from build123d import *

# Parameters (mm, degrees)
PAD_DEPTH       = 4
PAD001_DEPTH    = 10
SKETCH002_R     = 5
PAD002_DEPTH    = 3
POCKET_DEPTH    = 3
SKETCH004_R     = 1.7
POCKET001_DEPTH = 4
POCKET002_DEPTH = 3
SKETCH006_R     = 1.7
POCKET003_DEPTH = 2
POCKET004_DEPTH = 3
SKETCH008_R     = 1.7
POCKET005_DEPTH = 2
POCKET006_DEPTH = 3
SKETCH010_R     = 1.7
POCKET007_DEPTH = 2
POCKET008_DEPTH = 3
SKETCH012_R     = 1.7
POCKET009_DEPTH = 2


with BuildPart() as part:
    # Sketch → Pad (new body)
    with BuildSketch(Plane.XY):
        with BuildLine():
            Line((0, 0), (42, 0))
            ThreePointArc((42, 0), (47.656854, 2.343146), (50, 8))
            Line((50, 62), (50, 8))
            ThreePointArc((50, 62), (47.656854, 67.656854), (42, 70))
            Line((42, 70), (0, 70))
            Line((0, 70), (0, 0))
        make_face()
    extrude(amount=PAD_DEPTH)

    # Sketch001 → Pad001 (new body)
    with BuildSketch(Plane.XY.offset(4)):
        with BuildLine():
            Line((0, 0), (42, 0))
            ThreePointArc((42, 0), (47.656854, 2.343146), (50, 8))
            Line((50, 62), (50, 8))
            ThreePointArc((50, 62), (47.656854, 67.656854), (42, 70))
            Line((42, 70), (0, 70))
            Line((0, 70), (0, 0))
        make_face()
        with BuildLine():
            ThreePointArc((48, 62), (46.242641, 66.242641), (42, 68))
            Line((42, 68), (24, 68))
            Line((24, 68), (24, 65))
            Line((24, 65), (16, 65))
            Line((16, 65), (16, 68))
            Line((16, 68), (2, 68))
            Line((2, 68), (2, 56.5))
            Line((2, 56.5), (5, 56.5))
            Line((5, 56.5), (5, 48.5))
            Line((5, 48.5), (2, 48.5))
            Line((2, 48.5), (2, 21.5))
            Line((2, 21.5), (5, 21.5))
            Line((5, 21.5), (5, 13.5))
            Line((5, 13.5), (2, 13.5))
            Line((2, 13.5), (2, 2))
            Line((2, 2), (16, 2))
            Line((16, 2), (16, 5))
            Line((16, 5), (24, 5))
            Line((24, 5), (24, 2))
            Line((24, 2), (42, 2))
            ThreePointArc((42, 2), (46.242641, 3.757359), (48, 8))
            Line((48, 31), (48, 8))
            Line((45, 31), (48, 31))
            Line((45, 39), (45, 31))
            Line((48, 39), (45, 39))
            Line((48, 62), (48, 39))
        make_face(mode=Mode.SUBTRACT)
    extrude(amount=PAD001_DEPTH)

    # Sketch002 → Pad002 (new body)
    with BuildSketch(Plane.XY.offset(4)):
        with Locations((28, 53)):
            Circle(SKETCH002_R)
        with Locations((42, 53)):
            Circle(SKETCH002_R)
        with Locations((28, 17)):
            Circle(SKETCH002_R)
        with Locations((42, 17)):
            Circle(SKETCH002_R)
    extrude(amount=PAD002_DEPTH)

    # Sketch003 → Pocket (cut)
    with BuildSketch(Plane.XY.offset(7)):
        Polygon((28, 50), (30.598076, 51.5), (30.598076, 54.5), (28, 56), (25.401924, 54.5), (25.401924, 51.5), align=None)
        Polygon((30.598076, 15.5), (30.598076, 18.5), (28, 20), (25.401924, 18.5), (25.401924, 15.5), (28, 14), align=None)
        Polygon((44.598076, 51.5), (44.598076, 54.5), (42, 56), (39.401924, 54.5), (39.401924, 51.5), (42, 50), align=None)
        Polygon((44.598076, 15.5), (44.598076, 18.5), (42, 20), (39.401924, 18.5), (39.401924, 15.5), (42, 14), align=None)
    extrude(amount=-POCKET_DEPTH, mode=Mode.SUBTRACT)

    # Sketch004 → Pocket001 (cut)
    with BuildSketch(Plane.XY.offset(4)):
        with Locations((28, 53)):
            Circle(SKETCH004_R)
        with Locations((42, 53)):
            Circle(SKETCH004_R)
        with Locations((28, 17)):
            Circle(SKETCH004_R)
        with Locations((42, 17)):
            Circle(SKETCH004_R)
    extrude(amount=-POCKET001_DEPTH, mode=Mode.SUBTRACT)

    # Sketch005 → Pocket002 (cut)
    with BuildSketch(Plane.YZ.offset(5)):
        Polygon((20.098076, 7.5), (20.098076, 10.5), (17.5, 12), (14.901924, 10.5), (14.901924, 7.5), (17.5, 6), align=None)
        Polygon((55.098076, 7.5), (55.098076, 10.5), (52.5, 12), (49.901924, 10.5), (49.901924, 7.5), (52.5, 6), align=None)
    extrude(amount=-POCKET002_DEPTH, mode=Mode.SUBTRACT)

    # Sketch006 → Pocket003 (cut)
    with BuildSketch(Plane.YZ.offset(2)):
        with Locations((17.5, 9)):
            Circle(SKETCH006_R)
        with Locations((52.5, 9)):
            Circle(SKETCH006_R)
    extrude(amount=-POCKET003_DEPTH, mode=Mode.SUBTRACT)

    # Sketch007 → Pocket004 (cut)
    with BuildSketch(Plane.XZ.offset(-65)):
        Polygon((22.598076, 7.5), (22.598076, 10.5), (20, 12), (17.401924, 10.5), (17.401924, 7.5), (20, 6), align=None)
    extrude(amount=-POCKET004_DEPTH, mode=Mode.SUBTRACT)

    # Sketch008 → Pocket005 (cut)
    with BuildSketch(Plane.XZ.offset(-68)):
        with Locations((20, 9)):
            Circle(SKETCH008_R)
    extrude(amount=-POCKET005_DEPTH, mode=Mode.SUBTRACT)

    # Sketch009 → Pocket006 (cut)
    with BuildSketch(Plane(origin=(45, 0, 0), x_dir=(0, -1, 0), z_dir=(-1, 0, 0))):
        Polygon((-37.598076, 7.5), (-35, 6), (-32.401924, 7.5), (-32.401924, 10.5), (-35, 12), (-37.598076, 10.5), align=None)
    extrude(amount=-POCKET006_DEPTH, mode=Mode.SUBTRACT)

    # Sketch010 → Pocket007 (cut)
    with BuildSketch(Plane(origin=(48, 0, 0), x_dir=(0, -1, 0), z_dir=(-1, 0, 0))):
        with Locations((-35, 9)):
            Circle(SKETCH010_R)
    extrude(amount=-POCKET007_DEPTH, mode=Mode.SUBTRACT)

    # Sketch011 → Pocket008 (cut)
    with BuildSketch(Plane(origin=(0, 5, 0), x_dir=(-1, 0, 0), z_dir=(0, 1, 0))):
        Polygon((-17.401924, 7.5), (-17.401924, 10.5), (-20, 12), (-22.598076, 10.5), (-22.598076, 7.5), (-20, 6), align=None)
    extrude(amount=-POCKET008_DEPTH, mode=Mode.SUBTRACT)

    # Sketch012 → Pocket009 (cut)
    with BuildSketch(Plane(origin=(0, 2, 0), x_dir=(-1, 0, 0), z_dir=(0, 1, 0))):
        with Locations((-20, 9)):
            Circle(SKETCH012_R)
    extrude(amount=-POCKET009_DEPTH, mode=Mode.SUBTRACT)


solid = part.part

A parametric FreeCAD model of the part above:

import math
import FreeCAD as App
import Part
import Sketcher
Q = App.Units.Quantity

doc = App.newDocument("Part")
body = doc.addObject("PartDesign::Body", "Body")

# Sketch on XY plane
sketch1 = doc.addObject("Sketcher::SketchObject", "Sketch")
body.addObject(sketch1)
sketch1.AttachmentSupport = (doc.XY_Plane, [""])
sketch1.MapMode = "FlatFace"
sketch1.addGeometry(Part.LineSegment(App.Vector(0, 0, 0), App.Vector(42, 0, 0)), False)
sketch1.addGeometry(Part.ArcOfCircle(Part.Circle(App.Vector(42, 8, 0), App.Vector(0, 0, 1), 8), math.radians(-90), math.radians(0)), False)
sketch1.addGeometry(Part.LineSegment(App.Vector(50, 8, 0), App.Vector(50, 62, 0)), False)
sketch1.addGeometry(Part.ArcOfCircle(Part.Circle(App.Vector(42, 62, 0), App.Vector(0, 0, 1), 8), math.radians(0), math.radians(90)), False)
sketch1.addGeometry(Part.LineSegment(App.Vector(42, 70, 0), App.Vector(0, 70, 0)), False)
sketch1.addGeometry(Part.LineSegment(App.Vector(0, 70, 0), App.Vector(0, 0, 0)), False)
sketch1.addConstraint(Sketcher.Constraint("Tangent", 0, 2, 1, 1))
sketch1.addConstraint(Sketcher.Constraint("Tangent", 1, 2, 2, 1))
sketch1.addConstraint(Sketcher.Constraint("Tangent", 2, 2, 3, 1))
sketch1.addConstraint(Sketcher.Constraint("Tangent", 3, 2, 4, 1))
sketch1.addConstraint(Sketcher.Constraint("Coincident", 4, 2, 5, 1))
sketch1.addConstraint(Sketcher.Constraint("Coincident", 5, 2, 0, 1))
sketch1.addConstraint(Sketcher.Constraint("Horizontal", 0))
sketch1.addConstraint(Sketcher.Constraint("Vertical", 2))
sketch1.addConstraint(Sketcher.Constraint("Horizontal", 4))
sketch1.addConstraint(Sketcher.Constraint("Vertical", 5))
sketch1.addConstraint(Sketcher.Constraint("Coincident", 5, 2, -1, 1))
sketch1.addConstraint(Sketcher.Constraint("Equal", 1, 3))
sketch1.addConstraint(Sketcher.Constraint("Radius", 1, 8.000001))
sketch1.addConstraint(Sketcher.Constraint("DistanceX", 0, 1, 0, 2, 42.0))
sketch1.addConstraint(Sketcher.Constraint("DistanceY", 2, 1, 2, 2, 54.0))
pad1 = doc.addObject("PartDesign::Pad", "Pad")
body.addObject(pad1)
pad1.Profile = sketch1
pad1.Length = 4

# Sketch on XY plane
sketch2 = doc.addObject("Sketcher::SketchObject", "Sketch001")
body.addObject(sketch2)
sketch2.AttachmentSupport = (doc.XY_Plane, [""])
sketch2.MapMode = "FlatFace"
sketch2.AttachmentOffset = App.Placement(App.Vector(0, 0, 4), App.Rotation())
sketch2.addGeometry(Part.LineSegment(App.Vector(0, 0, 0), App.Vector(42, 0, 0)), False)
sketch2.addGeometry(Part.ArcOfCircle(Part.Circle(App.Vector(42, 8, 0), App.Vector(0, 0, 1), 8), math.radians(-90), math.radians(0)), False)
sketch2.addGeometry(Part.LineSegment(App.Vector(50, 8, 0), App.Vector(50, 62, 0)), False)
sketch2.addGeometry(Part.ArcOfCircle(Part.Circle(App.Vector(42, 62, 0), App.Vector(0, 0, 1), 8), math.radians(0), math.radians(90)), False)
sketch2.addGeometry(Part.LineSegment(App.Vector(42, 70, 0), App.Vector(0, 70, 0)), False)
sketch2.addGeometry(Part.LineSegment(App.Vector(0, 70, 0), App.Vector(0, 0, 0)), False)
sketch2.addGeometry(Part.ArcOfCircle(Part.Circle(App.Vector(42, 62, 0), App.Vector(0, 0, 1), 6), math.radians(0), math.radians(90)), False)
sketch2.addGeometry(Part.LineSegment(App.Vector(48, 62, 0), App.Vector(48, 39, 0)), False)
sketch2.addGeometry(Part.LineSegment(App.Vector(48, 39, 0), App.Vector(45, 39, 0)), False)
sketch2.addGeometry(Part.LineSegment(App.Vector(45, 39, 0), App.Vector(45, 31, 0)), False)
sketch2.addGeometry(Part.LineSegment(App.Vector(45, 31, 0), App.Vector(48, 31, 0)), False)
sketch2.addGeometry(Part.LineSegment(App.Vector(48, 31, 0), App.Vector(48, 8, 0)), False)
sketch2.addGeometry(Part.ArcOfCircle(Part.Circle(App.Vector(42, 8, 0), App.Vector(0, 0, 1), 6), math.radians(-90), math.radians(0)), False)
sketch2.addGeometry(Part.LineSegment(App.Vector(42, 2, 0), App.Vector(24, 2, 0)), False)
sketch2.addGeometry(Part.LineSegment(App.Vector(24, 2, 0), App.Vector(24, 5, 0)), False)
sketch2.addGeometry(Part.LineSegment(App.Vector(24, 5, 0), App.Vector(16, 5, 0)), False)
sketch2.addGeometry(Part.LineSegment(App.Vector(16, 5, 0), App.Vector(16, 2, 0)), False)
sketch2.addGeometry(Part.LineSegment(App.Vector(16, 2, 0), App.Vector(2, 2, 0)), False)
sketch2.addGeometry(Part.LineSegment(App.Vector(2, 2, 0), App.Vector(2, 13.5, 0)), False)
sketch2.addGeometry(Part.LineSegment(App.Vector(2, 13.5, 0), App.Vector(5, 13.5, 0)), False)
sketch2.addGeometry(Part.LineSegment(App.Vector(5, 13.5, 0), App.Vector(5, 21.5, 0)), False)
sketch2.addGeometry(Part.LineSegment(App.Vector(5, 21.5, 0), App.Vector(2, 21.5, 0)), False)
sketch2.addGeometry(Part.LineSegment(App.Vector(2, 21.5, 0), App.Vector(2, 48.5, 0)), False)
sketch2.addGeometry(Part.LineSegment(App.Vector(2, 48.5, 0), App.Vector(5, 48.5, 0)), False)
sketch2.addGeometry(Part.LineSegment(App.Vector(5, 48.5, 0), App.Vector(5, 56.5, 0)), False)
sketch2.addGeometry(Part.LineSegment(App.Vector(5, 56.5, 0), App.Vector(2, 56.5, 0)), False)
sketch2.addGeometry(Part.LineSegment(App.Vector(2, 56.5, 0), App.Vector(2, 68, 0)), False)
sketch2.addGeometry(Part.LineSegment(App.Vector(2, 68, 0), App.Vector(16, 68, 0)), False)
sketch2.addGeometry(Part.LineSegment(App.Vector(16, 68, 0), App.Vector(16, 65, 0)), False)
sketch2.addGeometry(Part.LineSegment(App.Vector(16, 65, 0), App.Vector(24, 65, 0)), False)
sketch2.addGeometry(Part.LineSegment(App.Vector(24, 65, 0), App.Vector(24, 68, 0)), False)
sketch2.addGeometry(Part.LineSegment(App.Vector(24, 68, 0), App.Vector(42, 68, 0)), False)
sketch2.addConstraint(Sketcher.Constraint("Tangent", 0, 2, 1, 1))
sketch2.addConstraint(Sketcher.Constraint("Tangent", 1, 2, 2, 1))
sketch2.addConstraint(Sketcher.Constraint("Tangent", 2, 2, 3, 1))
sketch2.addConstraint(Sketcher.Constraint("Tangent", 3, 2, 4, 1))
sketch2.addConstraint(Sketcher.Constraint("Coincident", 4, 2, 5, 1))
sketch2.addConstraint(Sketcher.Constraint("Coincident", 5, 2, 0, 1))
sketch2.addConstraint(Sketcher.Constraint("Tangent", 6, 1, 7, 1))
sketch2.addConstraint(Sketcher.Constraint("Coincident", 7, 2, 8, 1))
sketch2.addConstraint(Sketcher.Constraint("Coincident", 8, 2, 9, 1))
sketch2.addConstraint(Sketcher.Constraint("Coincident", 9, 2, 10, 1))
sketch2.addConstraint(Sketcher.Constraint("Coincident", 10, 2, 11, 1))
sketch2.addConstraint(Sketcher.Constraint("Tangent", 11, 2, 12, 2))
sketch2.addConstraint(Sketcher.Constraint("Tangent", 12, 1, 13, 1))
sketch2.addConstraint(Sketcher.Constraint("Coincident", 13, 2, 14, 1))
sketch2.addConstraint(Sketcher.Constraint("Coincident", 14, 2, 15, 1))
sketch2.addConstraint(Sketcher.Constraint("Coincident", 15, 2, 16, 1))
sketch2.addConstraint(Sketcher.Constraint("Coincident", 16, 2, 17, 1))
sketch2.addConstraint(Sketcher.Constraint("Coincident", 17, 2, 18, 1))
sketch2.addConstraint(Sketcher.Constraint("Coincident", 18, 2, 19, 1))
sketch2.addConstraint(Sketcher.Constraint("Coincident", 19, 2, 20, 1))
sketch2.addConstraint(Sketcher.Constraint("Coincident", 20, 2, 21, 1))
sketch2.addConstraint(Sketcher.Constraint("Coincident", 21, 2, 22, 1))
sketch2.addConstraint(Sketcher.Constraint("Coincident", 22, 2, 23, 1))
sketch2.addConstraint(Sketcher.Constraint("Coincident", 23, 2, 24, 1))
sketch2.addConstraint(Sketcher.Constraint("Coincident", 24, 2, 25, 1))
sketch2.addConstraint(Sketcher.Constraint("Coincident", 25, 2, 26, 1))
sketch2.addConstraint(Sketcher.Constraint("Coincident", 26, 2, 27, 1))
sketch2.addConstraint(Sketcher.Constraint("Coincident", 27, 2, 28, 1))
sketch2.addConstraint(Sketcher.Constraint("Coincident", 28, 2, 29, 1))
sketch2.addConstraint(Sketcher.Constraint("Coincident", 29, 2, 30, 1))
sketch2.addConstraint(Sketcher.Constraint("Coincident", 30, 2, 31, 1))
sketch2.addConstraint(Sketcher.Constraint("Tangent", 31, 2, 6, 2))
sketch2.addConstraint(Sketcher.Constraint("Horizontal", 0))
sketch2.addConstraint(Sketcher.Constraint("Vertical", 2))
sketch2.addConstraint(Sketcher.Constraint("Horizontal", 4))
sketch2.addConstraint(Sketcher.Constraint("Vertical", 5))
sketch2.addConstraint(Sketcher.Constraint("Vertical", 7))
sketch2.addConstraint(Sketcher.Constraint("Horizontal", 8))
sketch2.addConstraint(Sketcher.Constraint("Vertical", 9))
sketch2.addConstraint(Sketcher.Constraint("Horizontal", 10))
sketch2.addConstraint(Sketcher.Constraint("Vertical", 11))
sketch2.addConstraint(Sketcher.Constraint("Horizontal", 13))
sketch2.addConstraint(Sketcher.Constraint("Vertical", 14))
sketch2.addConstraint(Sketcher.Constraint("Horizontal", 15))
sketch2.addConstraint(Sketcher.Constraint("Vertical", 16))
sketch2.addConstraint(Sketcher.Constraint("Horizontal", 17))
sketch2.addConstraint(Sketcher.Constraint("Vertical", 18))
sketch2.addConstraint(Sketcher.Constraint("Horizontal", 19))
sketch2.addConstraint(Sketcher.Constraint("Vertical", 20))
sketch2.addConstraint(Sketcher.Constraint("Horizontal", 21))
sketch2.addConstraint(Sketcher.Constraint("Vertical", 22))
sketch2.addConstraint(Sketcher.Constraint("Horizontal", 23))
sketch2.addConstraint(Sketcher.Constraint("Vertical", 24))
sketch2.addConstraint(Sketcher.Constraint("Horizontal", 25))
sketch2.addConstraint(Sketcher.Constraint("Vertical", 26))
sketch2.addConstraint(Sketcher.Constraint("Horizontal", 27))
sketch2.addConstraint(Sketcher.Constraint("Vertical", 28))
sketch2.addConstraint(Sketcher.Constraint("Horizontal", 29))
sketch2.addConstraint(Sketcher.Constraint("Vertical", 30))
sketch2.addConstraint(Sketcher.Constraint("Horizontal", 31))
sketch2.addConstraint(Sketcher.Constraint("Coincident", 5, 2, -1, 1))
sketch2.addConstraint(Sketcher.Constraint("Coincident", 6, 3, 3, 3))
sketch2.addConstraint(Sketcher.Constraint("Coincident", 12, 3, 1, 3))
sketch2.addConstraint(Sketcher.Constraint("Equal", 1, 3))
sketch2.addConstraint(Sketcher.Constraint("Equal", 6, 12))
sketch2.addConstraint(Sketcher.Constraint("Horizontal", 13, 2, 16, 2))
sketch2.addConstraint(Sketcher.Constraint("Horizontal", 27, 2, 30, 2))
sketch2.addConstraint(Sketcher.Constraint("Vertical", 18, 2, 21, 2))
sketch2.addConstraint(Sketcher.Constraint("Vertical", 20, 2, 23, 2))
sketch2.addConstraint(Sketcher.Constraint("Vertical", 22, 2, 25, 2))
sketch2.addConstraint(Sketcher.Constraint("Vertical", 16, 2, 27, 2))
sketch2.addConstraint(Sketcher.Constraint("Vertical", 14, 2, 29, 2))
sketch2.addConstraint(Sketcher.Constraint("Equal", 10, 19))
sketch2.addConstraint(Sketcher.Constraint("Equal", 29, 9))
sketch2.addConstraint(Sketcher.Constraint("Equal", 7, 11))
sketch2.addConstraint(Sketcher.Constraint("Equal", 25, 14))
sketch2.addConstraint(Sketcher.Constraint("Equal", 9, 20))
sketch2.addConstraint(Sketcher.Constraint("Equal", 20, 24))
sketch2.addConstraint(Sketcher.Constraint("Equal", 18, 26))
sketch2.addConstraint(Sketcher.Constraint("Equal", 16, 28))
sketch2.addConstraint(Sketcher.Constraint("Radius", 1, 8.000001))
sketch2.addConstraint(Sketcher.Constraint("Radius", 6, 5.999999))
sketch2.addConstraint(Sketcher.Constraint("DistanceX", 0, 1, 0, 2, 42.0))
sketch2.addConstraint(Sketcher.Constraint("DistanceX", 8, 2, 8, 1, 3.0))
sketch2.addConstraint(Sketcher.Constraint("DistanceX", 13, 2, 13, 1, 18.0))
sketch2.addConstraint(Sketcher.Constraint("DistanceX", 15, 2, 15, 1, 8.0))
sketch2.addConstraint(Sketcher.Constraint("DistanceX", 17, 2, 17, 1, 14.0))
sketch2.addConstraint(Sketcher.Constraint("DistanceY", 2, 1, 2, 2, 54.0))
sketch2.addConstraint(Sketcher.Constraint("DistanceY", 22, 1, 22, 2, 27.0))
pad2 = doc.addObject("PartDesign::Pad", "Pad001")
body.addObject(pad2)
pad2.Profile = sketch2
pad2.Length = 10

# Sketch on XY plane
sketch3 = doc.addObject("Sketcher::SketchObject", "Sketch002")
body.addObject(sketch3)
sketch3.AttachmentSupport = (doc.XY_Plane, [""])
sketch3.MapMode = "FlatFace"
sketch3.AttachmentOffset = App.Placement(App.Vector(0, 0, 4), App.Rotation())
sketch3.addGeometry(Part.Circle(App.Vector(28, 53, 0), App.Vector(0, 0, 1), 5), False)
sketch3.addGeometry(Part.Circle(App.Vector(42, 53, 0), App.Vector(0, 0, 1), 5), False)
sketch3.addGeometry(Part.Circle(App.Vector(28, 17, 0), App.Vector(0, 0, 1), 5), False)
sketch3.addGeometry(Part.Circle(App.Vector(42, 17, 0), App.Vector(0, 0, 1), 5), False)
sketch3.addConstraint(Sketcher.Constraint("Equal", 0, 1))
sketch3.addConstraint(Sketcher.Constraint("Equal", 1, 2))
sketch3.addConstraint(Sketcher.Constraint("Equal", 2, 3))
sketch3.addConstraint(Sketcher.Constraint("Horizontal", 0, 3, 1, 3))
sketch3.addConstraint(Sketcher.Constraint("Horizontal", 2, 3, 3, 3))
sketch3.addConstraint(Sketcher.Constraint("Vertical", 0, 3, 2, 3))
sketch3.addConstraint(Sketcher.Constraint("Vertical", 1, 3, 3, 3))
sketch3.addConstraint(Sketcher.Constraint("Diameter", 0, 10.0))
sketch3.addConstraint(Sketcher.Constraint("DistanceX", -1, 1, 0, 3, 28.0))
sketch3.addConstraint(Sketcher.Constraint("DistanceY", -1, 1, 0, 3, 53.0))
sketch3.addConstraint(Sketcher.Constraint("DistanceX", -1, 1, 1, 3, 42.0))
sketch3.addConstraint(Sketcher.Constraint("DistanceY", -1, 1, 2, 3, 17.0))
pad3 = doc.addObject("PartDesign::Pad", "Pad002")
body.addObject(pad3)
pad3.Profile = sketch3
pad3.Length = 3

# Sketch on XY plane
sketch4 = doc.addObject("Sketcher::SketchObject", "Sketch003")
body.addObject(sketch4)
sketch4.AttachmentSupport = (doc.XY_Plane, [""])
sketch4.MapMode = "FlatFace"
sketch4.AttachmentOffset = App.Placement(App.Vector(0, 0, 7), App.Rotation())
sketch4.addGeometry(Part.LineSegment(App.Vector(28, 50, 0), App.Vector(30.6, 51.5, 0)), False)
sketch4.addGeometry(Part.LineSegment(App.Vector(30.6, 51.5, 0), App.Vector(30.6, 54.5, 0)), False)
sketch4.addGeometry(Part.LineSegment(App.Vector(30.6, 54.5, 0), App.Vector(28, 56, 0)), False)
sketch4.addGeometry(Part.LineSegment(App.Vector(28, 56, 0), App.Vector(25.4, 54.5, 0)), False)
sketch4.addGeometry(Part.LineSegment(App.Vector(25.4, 54.5, 0), App.Vector(25.4, 51.5, 0)), False)
sketch4.addGeometry(Part.LineSegment(App.Vector(25.4, 51.5, 0), App.Vector(28, 50, 0)), False)
sketch4.addGeometry(Part.LineSegment(App.Vector(30.6, 15.5, 0), App.Vector(30.6, 18.5, 0)), False)
sketch4.addGeometry(Part.LineSegment(App.Vector(30.6, 18.5, 0), App.Vector(28, 20, 0)), False)
sketch4.addGeometry(Part.LineSegment(App.Vector(28, 20, 0), App.Vector(25.4, 18.5, 0)), False)
sketch4.addGeometry(Part.LineSegment(App.Vector(25.4, 18.5, 0), App.Vector(25.4, 15.5, 0)), False)
sketch4.addGeometry(Part.LineSegment(App.Vector(25.4, 15.5, 0), App.Vector(28, 14, 0)), False)
sketch4.addGeometry(Part.LineSegment(App.Vector(28, 14, 0), App.Vector(30.6, 15.5, 0)), False)
sketch4.addGeometry(Part.LineSegment(App.Vector(44.6, 51.5, 0), App.Vector(44.6, 54.5, 0)), False)
sketch4.addGeometry(Part.LineSegment(App.Vector(44.6, 54.5, 0), App.Vector(42, 56, 0)), False)
sketch4.addGeometry(Part.LineSegment(App.Vector(42, 56, 0), App.Vector(39.4, 54.5, 0)), False)
sketch4.addGeometry(Part.LineSegment(App.Vector(39.4, 54.5, 0), App.Vector(39.4, 51.5, 0)), False)
sketch4.addGeometry(Part.LineSegment(App.Vector(39.4, 51.5, 0), App.Vector(42, 50, 0)), False)
sketch4.addGeometry(Part.LineSegment(App.Vector(42, 50, 0), App.Vector(44.6, 51.5, 0)), False)
sketch4.addGeometry(Part.LineSegment(App.Vector(44.6, 15.5, 0), App.Vector(44.6, 18.5, 0)), False)
sketch4.addGeometry(Part.LineSegment(App.Vector(44.6, 18.5, 0), App.Vector(42, 20, 0)), False)
sketch4.addGeometry(Part.LineSegment(App.Vector(42, 20, 0), App.Vector(39.4, 18.5, 0)), False)
sketch4.addGeometry(Part.LineSegment(App.Vector(39.4, 18.5, 0), App.Vector(39.4, 15.5, 0)), False)
sketch4.addGeometry(Part.LineSegment(App.Vector(39.4, 15.5, 0), App.Vector(42, 14, 0)), False)
sketch4.addGeometry(Part.LineSegment(App.Vector(42, 14, 0), App.Vector(44.6, 15.5, 0)), False)
sketch4.addConstraint(Sketcher.Constraint("Coincident", 0, 2, 1, 1))
sketch4.addConstraint(Sketcher.Constraint("Coincident", 1, 2, 2, 1))
sketch4.addConstraint(Sketcher.Constraint("Coincident", 2, 2, 3, 1))
sketch4.addConstraint(Sketcher.Constraint("Coincident", 3, 2, 4, 1))
sketch4.addConstraint(Sketcher.Constraint("Coincident", 4, 2, 5, 1))
sketch4.addConstraint(Sketcher.Constraint("Coincident", 5, 2, 0, 1))
sketch4.addConstraint(Sketcher.Constraint("Coincident", 6, 2, 7, 1))
sketch4.addConstraint(Sketcher.Constraint("Coincident", 7, 2, 8, 1))
sketch4.addConstraint(Sketcher.Constraint("Coincident", 8, 2, 9, 1))
sketch4.addConstraint(Sketcher.Constraint("Coincident", 9, 2, 10, 1))
sketch4.addConstraint(Sketcher.Constraint("Coincident", 10, 2, 11, 1))
sketch4.addConstraint(Sketcher.Constraint("Coincident", 11, 2, 6, 1))
sketch4.addConstraint(Sketcher.Constraint("Coincident", 12, 2, 13, 1))
sketch4.addConstraint(Sketcher.Constraint("Coincident", 13, 2, 14, 1))
sketch4.addConstraint(Sketcher.Constraint("Coincident", 14, 2, 15, 1))
sketch4.addConstraint(Sketcher.Constraint("Coincident", 15, 2, 16, 1))
sketch4.addConstraint(Sketcher.Constraint("Coincident", 16, 2, 17, 1))
sketch4.addConstraint(Sketcher.Constraint("Coincident", 17, 2, 12, 1))
sketch4.addConstraint(Sketcher.Constraint("Coincident", 18, 2, 19, 1))
sketch4.addConstraint(Sketcher.Constraint("Coincident", 19, 2, 20, 1))
sketch4.addConstraint(Sketcher.Constraint("Coincident", 20, 2, 21, 1))
sketch4.addConstraint(Sketcher.Constraint("Coincident", 21, 2, 22, 1))
sketch4.addConstraint(Sketcher.Constraint("Coincident", 22, 2, 23, 1))
sketch4.addConstraint(Sketcher.Constraint("Coincident", 23, 2, 18, 1))
sketch4.addConstraint(Sketcher.Constraint("Vertical", 1))
sketch4.addConstraint(Sketcher.Constraint("Vertical", 4))
sketch4.addConstraint(Sketcher.Constraint("Vertical", 6))
sketch4.addConstraint(Sketcher.Constraint("Vertical", 9))
sketch4.addConstraint(Sketcher.Constraint("Vertical", 12))
sketch4.addConstraint(Sketcher.Constraint("Vertical", 15))
sketch4.addConstraint(Sketcher.Constraint("Vertical", 18))
sketch4.addConstraint(Sketcher.Constraint("Vertical", 21))
sketch4.addConstraint(Sketcher.Constraint("Parallel", 0, 3))
sketch4.addConstraint(Sketcher.Constraint("Parallel", 2, 5))
sketch4.addConstraint(Sketcher.Constraint("Parallel", 5, 7))
sketch4.addConstraint(Sketcher.Constraint("Parallel", 3, 8))
sketch4.addConstraint(Sketcher.Constraint("Parallel", 7, 10))
sketch4.addConstraint(Sketcher.Constraint("Parallel", 8, 11))
sketch4.addConstraint(Sketcher.Constraint("Parallel", 10, 13))
sketch4.addConstraint(Sketcher.Constraint("Parallel", 11, 14))
sketch4.addConstraint(Sketcher.Constraint("Parallel", 13, 16))
sketch4.addConstraint(Sketcher.Constraint("Parallel", 14, 17))
sketch4.addConstraint(Sketcher.Constraint("Parallel", 16, 19))
sketch4.addConstraint(Sketcher.Constraint("Parallel", 17, 20))
sketch4.addConstraint(Sketcher.Constraint("Parallel", 19, 22))
sketch4.addConstraint(Sketcher.Constraint("Parallel", 20, 23))
sketch4.addConstraint(Sketcher.Constraint("Horizontal", 1, 2, 3, 2))
sketch4.addConstraint(Sketcher.Constraint("Horizontal", 0, 2, 4, 2))
sketch4.addConstraint(Sketcher.Constraint("Horizontal", 6, 2, 8, 2))
sketch4.addConstraint(Sketcher.Constraint("Horizontal", 9, 2, 11, 2))
sketch4.addConstraint(Sketcher.Constraint("Horizontal", 3, 2, 12, 2))
sketch4.addConstraint(Sketcher.Constraint("Horizontal", 2, 2, 13, 2))
sketch4.addConstraint(Sketcher.Constraint("Horizontal", 12, 2, 14, 2))
sketch4.addConstraint(Sketcher.Constraint("Horizontal", 4, 2, 15, 2))
sketch4.addConstraint(Sketcher.Constraint("Horizontal", 5, 2, 16, 2))
sketch4.addConstraint(Sketcher.Constraint("Horizontal", 8, 2, 18, 2))
sketch4.addConstraint(Sketcher.Constraint("Horizontal", 7, 2, 19, 2))
sketch4.addConstraint(Sketcher.Constraint("Horizontal", 18, 2, 20, 2))
sketch4.addConstraint(Sketcher.Constraint("Horizontal", 11, 2, 21, 2))
sketch4.addConstraint(Sketcher.Constraint("Horizontal", 10, 2, 22, 2))
sketch4.addConstraint(Sketcher.Constraint("Vertical", 2, 2, 5, 2))
sketch4.addConstraint(Sketcher.Constraint("Vertical", 1, 2, 6, 2))
sketch4.addConstraint(Sketcher.Constraint("Vertical", 5, 2, 7, 2))
sketch4.addConstraint(Sketcher.Constraint("Vertical", 17, 2, 18, 2))
sketch4.addConstraint(Sketcher.Constraint("Equal", 4, 6))
sketch4.addConstraint(Sketcher.Constraint("DistanceY", 1, 1, 1, 2, 3.0))
sketch4.addConstraint(Sketcher.Constraint("Angle", 0, Q("30.000002 deg")))
sketch4.addConstraint(Sketcher.Constraint("Distance", 0, 3.0))
sketch4.addConstraint(Sketcher.Constraint("DistanceX", -1, 1, 2, 2, 28.0))
sketch4.addConstraint(Sketcher.Constraint("DistanceY", -1, 1, 2, 2, 56.0))
sketch4.addConstraint(Sketcher.Constraint("DistanceY", -1, 1, 7, 2, 20.0))
sketch4.addConstraint(Sketcher.Constraint("DistanceX", -1, 1, 13, 2, 42.0))
pocket1 = doc.addObject("PartDesign::Pocket", "Pocket")
body.addObject(pocket1)
pocket1.Profile = sketch4
pocket1.Length = 3

# Sketch on XY plane
sketch5 = doc.addObject("Sketcher::SketchObject", "Sketch004")
body.addObject(sketch5)
sketch5.AttachmentSupport = (doc.XY_Plane, [""])
sketch5.MapMode = "FlatFace"
sketch5.AttachmentOffset = App.Placement(App.Vector(0, 0, 4), App.Rotation())
sketch5.addGeometry(Part.Circle(App.Vector(28, 53, 0), App.Vector(0, 0, 1), 1.7), False)
sketch5.addGeometry(Part.Circle(App.Vector(42, 53, 0), App.Vector(0, 0, 1), 1.7), False)
sketch5.addGeometry(Part.Circle(App.Vector(28, 17, 0), App.Vector(0, 0, 1), 1.7), False)
sketch5.addGeometry(Part.Circle(App.Vector(42, 17, 0), App.Vector(0, 0, 1), 1.7), False)
sketch5.addConstraint(Sketcher.Constraint("Equal", 0, 1))
sketch5.addConstraint(Sketcher.Constraint("Equal", 1, 2))
sketch5.addConstraint(Sketcher.Constraint("Equal", 2, 3))
sketch5.addConstraint(Sketcher.Constraint("Horizontal", 0, 3, 1, 3))
sketch5.addConstraint(Sketcher.Constraint("Horizontal", 2, 3, 3, 3))
sketch5.addConstraint(Sketcher.Constraint("Vertical", 0, 3, 2, 3))
sketch5.addConstraint(Sketcher.Constraint("Vertical", 1, 3, 3, 3))
sketch5.addConstraint(Sketcher.Constraint("Diameter", 0, 3.4))
sketch5.addConstraint(Sketcher.Constraint("DistanceX", -1, 1, 0, 3, 28.0))
sketch5.addConstraint(Sketcher.Constraint("DistanceY", -1, 1, 0, 3, 53.0))
sketch5.addConstraint(Sketcher.Constraint("DistanceX", -1, 1, 1, 3, 42.0))
sketch5.addConstraint(Sketcher.Constraint("DistanceY", -1, 1, 2, 3, 17.0))
pocket2 = doc.addObject("PartDesign::Pocket", "Pocket001")
body.addObject(pocket2)
pocket2.Profile = sketch5
pocket2.Length = 4

# Sketch on YZ plane
sketch6 = doc.addObject("Sketcher::SketchObject", "Sketch005")
body.addObject(sketch6)
sketch6.AttachmentSupport = (doc.YZ_Plane, [""])
sketch6.MapMode = "FlatFace"
sketch6.AttachmentOffset = App.Placement(App.Vector(0, 0, 5), App.Rotation())
sketch6.addGeometry(Part.LineSegment(App.Vector(20.1, 7.5, 0), App.Vector(20.1, 10.5, 0)), False)
sketch6.addGeometry(Part.LineSegment(App.Vector(20.1, 10.5, 0), App.Vector(17.5, 12, 0)), False)
sketch6.addGeometry(Part.LineSegment(App.Vector(17.5, 12, 0), App.Vector(14.9, 10.5, 0)), False)
sketch6.addGeometry(Part.LineSegment(App.Vector(14.9, 10.5, 0), App.Vector(14.9, 7.5, 0)), False)
sketch6.addGeometry(Part.LineSegment(App.Vector(14.9, 7.5, 0), App.Vector(17.5, 6, 0)), False)
sketch6.addGeometry(Part.LineSegment(App.Vector(17.5, 6, 0), App.Vector(20.1, 7.5, 0)), False)
sketch6.addGeometry(Part.LineSegment(App.Vector(55.1, 7.5, 0), App.Vector(55.1, 10.5, 0)), False)
sketch6.addGeometry(Part.LineSegment(App.Vector(55.1, 10.5, 0), App.Vector(52.5, 12, 0)), False)
sketch6.addGeometry(Part.LineSegment(App.Vector(52.5, 12, 0), App.Vector(49.9, 10.5, 0)), False)
sketch6.addGeometry(Part.LineSegment(App.Vector(49.9, 10.5, 0), App.Vector(49.9, 7.5, 0)), False)
sketch6.addGeometry(Part.LineSegment(App.Vector(49.9, 7.5, 0), App.Vector(52.5, 6, 0)), False)
sketch6.addGeometry(Part.LineSegment(App.Vector(52.5, 6, 0), App.Vector(55.1, 7.5, 0)), False)
sketch6.addConstraint(Sketcher.Constraint("Coincident", 0, 2, 1, 1))
sketch6.addConstraint(Sketcher.Constraint("Coincident", 1, 2, 2, 1))
sketch6.addConstraint(Sketcher.Constraint("Coincident", 2, 2, 3, 1))
sketch6.addConstraint(Sketcher.Constraint("Coincident", 3, 2, 4, 1))
sketch6.addConstraint(Sketcher.Constraint("Coincident", 4, 2, 5, 1))
sketch6.addConstraint(Sketcher.Constraint("Coincident", 5, 2, 0, 1))
sketch6.addConstraint(Sketcher.Constraint("Coincident", 6, 2, 7, 1))
sketch6.addConstraint(Sketcher.Constraint("Coincident", 7, 2, 8, 1))
sketch6.addConstraint(Sketcher.Constraint("Coincident", 8, 2, 9, 1))
sketch6.addConstraint(Sketcher.Constraint("Coincident", 9, 2, 10, 1))
sketch6.addConstraint(Sketcher.Constraint("Coincident", 10, 2, 11, 1))
sketch6.addConstraint(Sketcher.Constraint("Coincident", 11, 2, 6, 1))
sketch6.addConstraint(Sketcher.Constraint("Vertical", 0))
sketch6.addConstraint(Sketcher.Constraint("Vertical", 3))
sketch6.addConstraint(Sketcher.Constraint("Vertical", 6))
sketch6.addConstraint(Sketcher.Constraint("Vertical", 9))
sketch6.addConstraint(Sketcher.Constraint("Parallel", 1, 4))
sketch6.addConstraint(Sketcher.Constraint("Parallel", 2, 5))
sketch6.addConstraint(Sketcher.Constraint("Parallel", 4, 7))
sketch6.addConstraint(Sketcher.Constraint("Parallel", 5, 8))
sketch6.addConstraint(Sketcher.Constraint("Parallel", 7, 10))
sketch6.addConstraint(Sketcher.Constraint("Parallel", 8, 11))
sketch6.addConstraint(Sketcher.Constraint("Horizontal", 0, 2, 2, 2))
sketch6.addConstraint(Sketcher.Constraint("Horizontal", 3, 2, 5, 2))
sketch6.addConstraint(Sketcher.Constraint("Horizontal", 2, 2, 6, 2))
sketch6.addConstraint(Sketcher.Constraint("Horizontal", 1, 2, 7, 2))
sketch6.addConstraint(Sketcher.Constraint("Horizontal", 6, 2, 8, 2))
sketch6.addConstraint(Sketcher.Constraint("Horizontal", 5, 2, 9, 2))
sketch6.addConstraint(Sketcher.Constraint("Horizontal", 4, 2, 10, 2))
sketch6.addConstraint(Sketcher.Constraint("Vertical", 1, 2, 4, 2))
sketch6.addConstraint(Sketcher.Constraint("DistanceY", 0, 1, 0, 2, 3.0))
sketch6.addConstraint(Sketcher.Constraint("Angle", 1, Q("149.999998 deg")))
sketch6.addConstraint(Sketcher.Constraint("Distance", 1, 3.0))
sketch6.addConstraint(Sketcher.Constraint("DistanceY", -1, 1, 1, 2, 12.0))
sketch6.addConstraint(Sketcher.Constraint("DistanceX", 0, 2, 6, 2, 35.0))
sketch6.addConstraint(Sketcher.Constraint("DistanceX", -1, 1, 1, 2, 17.5))
pocket3 = doc.addObject("PartDesign::Pocket", "Pocket002")
body.addObject(pocket3)
pocket3.Profile = sketch6
pocket3.Length = 3

# Sketch on YZ plane
sketch7 = doc.addObject("Sketcher::SketchObject", "Sketch006")
body.addObject(sketch7)
sketch7.AttachmentSupport = (doc.YZ_Plane, [""])
sketch7.MapMode = "FlatFace"
sketch7.AttachmentOffset = App.Placement(App.Vector(0, 0, 2), App.Rotation())
sketch7.addGeometry(Part.Circle(App.Vector(17.5, 9, 0), App.Vector(0, 0, 1), 1.7), False)
sketch7.addGeometry(Part.Circle(App.Vector(52.5, 9, 0), App.Vector(0, 0, 1), 1.7), False)
sketch7.addConstraint(Sketcher.Constraint("Equal", 0, 1))
sketch7.addConstraint(Sketcher.Constraint("Horizontal", 0, 3, 1, 3))
sketch7.addConstraint(Sketcher.Constraint("Diameter", 0, 3.4))
sketch7.addConstraint(Sketcher.Constraint("DistanceY", -1, 1, 0, 3, 9.0))
sketch7.addConstraint(Sketcher.Constraint("DistanceX", 0, 3, 1, 3, 35.0))
sketch7.addConstraint(Sketcher.Constraint("DistanceX", -1, 1, 0, 3, 17.5))
pocket4 = doc.addObject("PartDesign::Pocket", "Pocket003")
body.addObject(pocket4)
pocket4.Profile = sketch7
pocket4.Length = 2

# Sketch on XZ plane
sketch8 = doc.addObject("Sketcher::SketchObject", "Sketch007")
body.addObject(sketch8)
sketch8.AttachmentSupport = (doc.XZ_Plane, [""])
sketch8.MapMode = "FlatFace"
sketch8.AttachmentOffset = App.Placement(App.Vector(0, 0, -65), App.Rotation())
sketch8.addGeometry(Part.LineSegment(App.Vector(22.6, 7.5, 0), App.Vector(22.6, 10.5, 0)), False)
sketch8.addGeometry(Part.LineSegment(App.Vector(22.6, 10.5, 0), App.Vector(20, 12, 0)), False)
sketch8.addGeometry(Part.LineSegment(App.Vector(20, 12, 0), App.Vector(17.4, 10.5, 0)), False)
sketch8.addGeometry(Part.LineSegment(App.Vector(17.4, 10.5, 0), App.Vector(17.4, 7.5, 0)), False)
sketch8.addGeometry(Part.LineSegment(App.Vector(17.4, 7.5, 0), App.Vector(20, 6, 0)), False)
sketch8.addGeometry(Part.LineSegment(App.Vector(20, 6, 0), App.Vector(22.6, 7.5, 0)), False)
sketch8.addConstraint(Sketcher.Constraint("Coincident", 0, 2, 1, 1))
sketch8.addConstraint(Sketcher.Constraint("Coincident", 1, 2, 2, 1))
sketch8.addConstraint(Sketcher.Constraint("Coincident", 2, 2, 3, 1))
sketch8.addConstraint(Sketcher.Constraint("Coincident", 3, 2, 4, 1))
sketch8.addConstraint(Sketcher.Constraint("Coincident", 4, 2, 5, 1))
sketch8.addConstraint(Sketcher.Constraint("Coincident", 5, 2, 0, 1))
sketch8.addConstraint(Sketcher.Constraint("Vertical", 0))
sketch8.addConstraint(Sketcher.Constraint("Vertical", 3))
sketch8.addConstraint(Sketcher.Constraint("Parallel", 1, 4))
sketch8.addConstraint(Sketcher.Constraint("Parallel", 2, 5))
sketch8.addConstraint(Sketcher.Constraint("Horizontal", 0, 2, 2, 2))
sketch8.addConstraint(Sketcher.Constraint("Horizontal", 3, 2, 5, 2))
sketch8.addConstraint(Sketcher.Constraint("Vertical", 1, 2, 4, 2))
sketch8.addConstraint(Sketcher.Constraint("DistanceY", 0, 1, 0, 2, 3.0))
sketch8.addConstraint(Sketcher.Constraint("Angle", 1, Q("149.999998 deg")))
sketch8.addConstraint(Sketcher.Constraint("Distance", 1, 3.0))
sketch8.addConstraint(Sketcher.Constraint("DistanceX", -1, 1, 1, 2, 20.0))
sketch8.addConstraint(Sketcher.Constraint("DistanceY", -1, 1, 1, 2, 12.0))
pocket5 = doc.addObject("PartDesign::Pocket", "Pocket004")
body.addObject(pocket5)
pocket5.Profile = sketch8
pocket5.Length = 3

# Sketch on XZ plane
sketch9 = doc.addObject("Sketcher::SketchObject", "Sketch008")
body.addObject(sketch9)
sketch9.AttachmentSupport = (doc.XZ_Plane, [""])
sketch9.MapMode = "FlatFace"
sketch9.AttachmentOffset = App.Placement(App.Vector(0, 0, -68), App.Rotation())
sketch9.addGeometry(Part.Circle(App.Vector(20, 9, 0), App.Vector(0, 0, 1), 1.7), False)
sketch9.addConstraint(Sketcher.Constraint("Diameter", 0, 3.4))
sketch9.addConstraint(Sketcher.Constraint("DistanceX", -1, 1, 0, 3, 20.0))
sketch9.addConstraint(Sketcher.Constraint("DistanceY", -1, 1, 0, 3, 9.0))
pocket6 = doc.addObject("PartDesign::Pocket", "Pocket005")
body.addObject(pocket6)
pocket6.Profile = sketch9
pocket6.Length = 2

# Sketch on YZ plane
sketch10 = doc.addObject("Sketcher::SketchObject", "Sketch009")
body.addObject(sketch10)
sketch10.AttachmentSupport = (doc.YZ_Plane, [""])
sketch10.MapMode = "FlatFace"
sketch10.AttachmentOffset = App.Placement(App.Vector(0, 0, 45), App.Rotation())
sketch10.addGeometry(Part.LineSegment(App.Vector(37.6, 7.5, 0), App.Vector(35, 6, 0)), False)
sketch10.addGeometry(Part.LineSegment(App.Vector(35, 6, 0), App.Vector(32.4, 7.5, 0)), False)
sketch10.addGeometry(Part.LineSegment(App.Vector(32.4, 7.5, 0), App.Vector(32.4, 10.5, 0)), False)
sketch10.addGeometry(Part.LineSegment(App.Vector(32.4, 10.5, 0), App.Vector(35, 12, 0)), False)
sketch10.addGeometry(Part.LineSegment(App.Vector(35, 12, 0), App.Vector(37.6, 10.5, 0)), False)
sketch10.addGeometry(Part.LineSegment(App.Vector(37.6, 10.5, 0), App.Vector(37.6, 7.5, 0)), False)
sketch10.addConstraint(Sketcher.Constraint("Coincident", 0, 2, 1, 1))
sketch10.addConstraint(Sketcher.Constraint("Coincident", 1, 2, 2, 1))
sketch10.addConstraint(Sketcher.Constraint("Coincident", 2, 2, 3, 1))
sketch10.addConstraint(Sketcher.Constraint("Coincident", 3, 2, 4, 1))
sketch10.addConstraint(Sketcher.Constraint("Coincident", 4, 2, 5, 1))
sketch10.addConstraint(Sketcher.Constraint("Coincident", 5, 2, 0, 1))
sketch10.addConstraint(Sketcher.Constraint("Vertical", 2))
sketch10.addConstraint(Sketcher.Constraint("Vertical", 5))
sketch10.addConstraint(Sketcher.Constraint("Parallel", 0, 3))
sketch10.addConstraint(Sketcher.Constraint("Parallel", 1, 4))
sketch10.addConstraint(Sketcher.Constraint("Horizontal", 2, 2, 4, 2))
sketch10.addConstraint(Sketcher.Constraint("Horizontal", 1, 2, 5, 2))
sketch10.addConstraint(Sketcher.Constraint("Vertical", 0, 2, 3, 2))
sketch10.addConstraint(Sketcher.Constraint("DistanceY", 2, 1, 2, 2, 3.0))
sketch10.addConstraint(Sketcher.Constraint("Angle", 0, Q("-149.999998 deg")))
sketch10.addConstraint(Sketcher.Constraint("Distance", 0, 3.0))
sketch10.addConstraint(Sketcher.Constraint("DistanceX", -1, 1, 0, 2, 35.0))
sketch10.addConstraint(Sketcher.Constraint("DistanceY", -1, 1, 0, 2, 6.0))
pocket7 = doc.addObject("PartDesign::Pocket", "Pocket006")
body.addObject(pocket7)
pocket7.Profile = sketch10
pocket7.Length = 3
pocket7.Reversed = True

# Sketch on YZ plane
sketch11 = doc.addObject("Sketcher::SketchObject", "Sketch010")
body.addObject(sketch11)
sketch11.AttachmentSupport = (doc.YZ_Plane, [""])
sketch11.MapMode = "FlatFace"
sketch11.AttachmentOffset = App.Placement(App.Vector(0, 0, 48), App.Rotation())
sketch11.addGeometry(Part.Circle(App.Vector(35, 9, 0), App.Vector(0, 0, 1), 1.7), False)
sketch11.addConstraint(Sketcher.Constraint("Diameter", 0, 3.4))
sketch11.addConstraint(Sketcher.Constraint("DistanceX", -1, 1, 0, 3, 35.0))
sketch11.addConstraint(Sketcher.Constraint("DistanceY", -1, 1, 0, 3, 9.0))
pocket8 = doc.addObject("PartDesign::Pocket", "Pocket007")
body.addObject(pocket8)
pocket8.Profile = sketch11
pocket8.Length = 2
pocket8.Reversed = True

# Sketch on XZ plane
sketch12 = doc.addObject("Sketcher::SketchObject", "Sketch011")
body.addObject(sketch12)
sketch12.AttachmentSupport = (doc.XZ_Plane, [""])
sketch12.MapMode = "FlatFace"
sketch12.AttachmentOffset = App.Placement(App.Vector(0, 0, -5), App.Rotation())
sketch12.addGeometry(Part.LineSegment(App.Vector(17.4, 7.5, 0), App.Vector(17.4, 10.5, 0)), False)
sketch12.addGeometry(Part.LineSegment(App.Vector(17.4, 10.5, 0), App.Vector(20, 12, 0)), False)
sketch12.addGeometry(Part.LineSegment(App.Vector(20, 12, 0), App.Vector(22.6, 10.5, 0)), False)
sketch12.addGeometry(Part.LineSegment(App.Vector(22.6, 10.5, 0), App.Vector(22.6, 7.5, 0)), False)
sketch12.addGeometry(Part.LineSegment(App.Vector(22.6, 7.5, 0), App.Vector(20, 6, 0)), False)
sketch12.addGeometry(Part.LineSegment(App.Vector(20, 6, 0), App.Vector(17.4, 7.5, 0)), False)
sketch12.addConstraint(Sketcher.Constraint("Coincident", 0, 2, 1, 1))
sketch12.addConstraint(Sketcher.Constraint("Coincident", 1, 2, 2, 1))
sketch12.addConstraint(Sketcher.Constraint("Coincident", 2, 2, 3, 1))
sketch12.addConstraint(Sketcher.Constraint("Coincident", 3, 2, 4, 1))
sketch12.addConstraint(Sketcher.Constraint("Coincident", 4, 2, 5, 1))
sketch12.addConstraint(Sketcher.Constraint("Coincident", 5, 2, 0, 1))
sketch12.addConstraint(Sketcher.Constraint("Vertical", 0))
sketch12.addConstraint(Sketcher.Constraint("Vertical", 3))
sketch12.addConstraint(Sketcher.Constraint("Parallel", 1, 4))
sketch12.addConstraint(Sketcher.Constraint("Parallel", 2, 5))
sketch12.addConstraint(Sketcher.Constraint("Horizontal", 0, 2, 2, 2))
sketch12.addConstraint(Sketcher.Constraint("Horizontal", 3, 2, 5, 2))
sketch12.addConstraint(Sketcher.Constraint("Vertical", 1, 2, 4, 2))
sketch12.addConstraint(Sketcher.Constraint("DistanceY", 0, 1, 0, 2, 3.0))
sketch12.addConstraint(Sketcher.Constraint("Angle", 1, Q("30.000002 deg")))
sketch12.addConstraint(Sketcher.Constraint("Distance", 1, 3.0))
sketch12.addConstraint(Sketcher.Constraint("DistanceX", -1, 1, 1, 2, 20.0))
sketch12.addConstraint(Sketcher.Constraint("DistanceY", -1, 1, 1, 2, 12.0))
pocket9 = doc.addObject("PartDesign::Pocket", "Pocket008")
body.addObject(pocket9)
pocket9.Profile = sketch12
pocket9.Length = 3
pocket9.Reversed = True

# Sketch on XZ plane
sketch13 = doc.addObject("Sketcher::SketchObject", "Sketch012")
body.addObject(sketch13)
sketch13.AttachmentSupport = (doc.XZ_Plane, [""])
sketch13.MapMode = "FlatFace"
sketch13.AttachmentOffset = App.Placement(App.Vector(0, 0, -2), App.Rotation())
sketch13.addGeometry(Part.Circle(App.Vector(20, 9, 0), App.Vector(0, 0, 1), 1.7), False)
sketch13.addConstraint(Sketcher.Constraint("Diameter", 0, 3.4))
sketch13.addConstraint(Sketcher.Constraint("DistanceX", -1, 1, 0, 3, 20.0))
sketch13.addConstraint(Sketcher.Constraint("DistanceY", -1, 1, 0, 3, 9.0))
pocket10 = doc.addObject("PartDesign::Pocket", "Pocket009")
body.addObject(pocket10)
pocket10.Profile = sketch13
pocket10.Length = 2
pocket10.Reversed = True

doc.recompute()
